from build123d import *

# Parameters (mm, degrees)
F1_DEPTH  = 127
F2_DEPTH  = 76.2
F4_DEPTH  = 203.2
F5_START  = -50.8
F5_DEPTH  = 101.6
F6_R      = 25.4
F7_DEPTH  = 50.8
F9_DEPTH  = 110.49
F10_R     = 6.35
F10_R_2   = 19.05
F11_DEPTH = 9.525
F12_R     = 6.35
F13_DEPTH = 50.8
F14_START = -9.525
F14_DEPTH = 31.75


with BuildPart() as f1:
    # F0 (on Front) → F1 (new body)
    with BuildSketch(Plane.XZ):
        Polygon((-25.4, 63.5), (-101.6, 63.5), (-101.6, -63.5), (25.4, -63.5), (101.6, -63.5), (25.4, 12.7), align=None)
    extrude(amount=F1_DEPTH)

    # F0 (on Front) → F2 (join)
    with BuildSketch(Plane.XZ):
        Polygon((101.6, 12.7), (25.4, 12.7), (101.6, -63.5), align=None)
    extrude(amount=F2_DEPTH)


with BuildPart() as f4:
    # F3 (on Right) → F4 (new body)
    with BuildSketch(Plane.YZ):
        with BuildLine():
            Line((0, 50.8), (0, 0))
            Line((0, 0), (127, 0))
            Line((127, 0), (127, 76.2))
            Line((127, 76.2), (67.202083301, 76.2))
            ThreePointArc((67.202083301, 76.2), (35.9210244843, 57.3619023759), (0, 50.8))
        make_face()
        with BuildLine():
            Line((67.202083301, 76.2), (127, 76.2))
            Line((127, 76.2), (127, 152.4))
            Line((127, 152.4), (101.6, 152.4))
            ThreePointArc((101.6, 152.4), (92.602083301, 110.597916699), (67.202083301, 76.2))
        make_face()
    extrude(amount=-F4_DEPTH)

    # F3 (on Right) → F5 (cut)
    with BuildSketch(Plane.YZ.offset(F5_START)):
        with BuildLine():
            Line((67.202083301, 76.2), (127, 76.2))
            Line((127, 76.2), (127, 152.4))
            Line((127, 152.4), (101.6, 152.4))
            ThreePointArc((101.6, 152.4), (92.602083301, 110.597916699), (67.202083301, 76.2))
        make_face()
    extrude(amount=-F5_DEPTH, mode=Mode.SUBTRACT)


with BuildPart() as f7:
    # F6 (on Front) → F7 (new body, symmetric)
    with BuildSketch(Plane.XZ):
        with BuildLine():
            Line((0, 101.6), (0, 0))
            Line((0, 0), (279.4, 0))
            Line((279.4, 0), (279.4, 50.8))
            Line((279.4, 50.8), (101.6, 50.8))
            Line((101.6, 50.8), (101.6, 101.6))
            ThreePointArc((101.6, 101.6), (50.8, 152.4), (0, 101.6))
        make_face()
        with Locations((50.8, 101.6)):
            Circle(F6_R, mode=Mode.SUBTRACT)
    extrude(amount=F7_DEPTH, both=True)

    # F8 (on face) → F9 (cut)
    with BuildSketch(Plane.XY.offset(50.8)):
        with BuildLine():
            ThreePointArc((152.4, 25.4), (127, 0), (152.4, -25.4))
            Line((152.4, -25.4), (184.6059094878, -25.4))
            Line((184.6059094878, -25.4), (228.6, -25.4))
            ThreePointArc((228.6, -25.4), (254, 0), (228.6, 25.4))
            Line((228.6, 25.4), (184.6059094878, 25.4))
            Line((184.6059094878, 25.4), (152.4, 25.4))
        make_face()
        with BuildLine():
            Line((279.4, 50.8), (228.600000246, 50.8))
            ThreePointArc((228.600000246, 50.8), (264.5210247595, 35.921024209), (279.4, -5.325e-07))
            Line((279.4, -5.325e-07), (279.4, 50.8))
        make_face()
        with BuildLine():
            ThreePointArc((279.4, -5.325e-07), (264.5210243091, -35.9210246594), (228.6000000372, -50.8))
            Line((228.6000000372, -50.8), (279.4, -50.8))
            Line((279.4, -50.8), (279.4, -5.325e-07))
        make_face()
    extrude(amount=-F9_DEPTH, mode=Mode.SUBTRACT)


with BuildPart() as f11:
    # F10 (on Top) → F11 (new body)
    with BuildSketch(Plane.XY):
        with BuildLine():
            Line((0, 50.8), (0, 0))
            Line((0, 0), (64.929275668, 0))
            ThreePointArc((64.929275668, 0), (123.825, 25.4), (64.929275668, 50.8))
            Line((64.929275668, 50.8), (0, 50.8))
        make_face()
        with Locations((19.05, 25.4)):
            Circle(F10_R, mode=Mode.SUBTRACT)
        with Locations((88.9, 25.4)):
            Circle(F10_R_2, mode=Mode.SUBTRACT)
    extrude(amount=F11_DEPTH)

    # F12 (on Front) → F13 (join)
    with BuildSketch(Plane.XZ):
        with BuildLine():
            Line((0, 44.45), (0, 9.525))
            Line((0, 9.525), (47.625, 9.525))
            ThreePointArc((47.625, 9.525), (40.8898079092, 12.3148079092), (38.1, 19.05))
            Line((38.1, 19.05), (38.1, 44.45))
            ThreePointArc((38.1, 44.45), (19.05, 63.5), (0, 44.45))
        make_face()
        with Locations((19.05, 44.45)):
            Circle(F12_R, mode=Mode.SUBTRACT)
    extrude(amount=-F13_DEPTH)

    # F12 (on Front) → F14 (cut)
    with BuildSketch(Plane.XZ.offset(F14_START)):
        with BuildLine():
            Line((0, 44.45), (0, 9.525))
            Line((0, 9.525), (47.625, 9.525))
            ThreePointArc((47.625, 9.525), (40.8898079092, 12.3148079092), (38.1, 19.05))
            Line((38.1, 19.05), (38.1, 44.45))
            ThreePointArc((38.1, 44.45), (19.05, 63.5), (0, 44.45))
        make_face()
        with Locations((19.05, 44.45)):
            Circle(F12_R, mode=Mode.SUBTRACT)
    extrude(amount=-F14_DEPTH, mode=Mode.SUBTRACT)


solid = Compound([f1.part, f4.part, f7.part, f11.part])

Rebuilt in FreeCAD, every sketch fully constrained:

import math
import FreeCAD as App
import Part
import Sketcher
from FreeCAD import Vector
Q = App.Units.Quantity


def add_polygon(sketch, points):
    """Adds a closed chain of lines whose ends are joined by coincident constraints."""
    first, n = sketch.GeometryCount, len(points)
    for a, b in zip(points, points[1:] + points[:1]):
        sketch.addGeometry(Part.LineSegment(App.Vector(*a, 0), App.Vector(*b, 0)), False)
    for i in range(n):
        sketch.addConstraint(Sketcher.Constraint("Coincident", first + i, 2, first + (i + 1) % n, 1))

doc = App.newDocument("Part")
body = doc.addObject("PartDesign::Body", "Body")

# Sketch on XZ plane
sketch1 = body.newObject("Sketcher::SketchObject", "Sketch")
sketch1.AttachmentSupport = (doc.getObject("XZ_Plane"), [""])
sketch1.MapMode = "FlatFace"
add_polygon(sketch1, [(-25, 64), (-102, 64), (-102, -64), (102, -64)])  # lines 0-3
sketch1.addConstraint([
    Sketcher.Constraint("Horizontal", 0),
    Sketcher.Constraint("Vertical", 1),
    Sketcher.Constraint("Horizontal", 2),
    Sketcher.Constraint("Symmetric", 0, 2, 2, 2, -1, 1),
    Sketcher.Constraint("DistanceX", 0, 2, 0, 1, Q("3 in")),
    Sketcher.Constraint("DistanceX", 2, 1, 2, 2, Q("8 in")),
    Sketcher.Constraint("DistanceY", 1, 2, 1, 1, Q("5 in")),
])
pad1 = body.newObject("PartDesign::Pad", "Pad")
pad1.Profile = sketch1
pad1.Length = Q("5 in")

# Sketch on XZ plane
sketch2 = body.newObject("Sketcher::SketchObject", "Sketch001")
sketch2.AttachmentSupport = (doc.getObject("XZ_Plane"), [""])
sketch2.MapMode = "FlatFace"
add_polygon(sketch2, [(102, 13), (25, 13), (102, -64)])  # lines 0-2
sketch2.addConstraint([
    Sketcher.Constraint("Horizontal", 0),
    Sketcher.Constraint("Vertical", 2),
    Sketcher.Constraint("Equal", 0, 2),
    Sketcher.Constraint("DistanceX", 0, 2, 0, 1, Q("3 in")),
    Sketcher.Constraint("DistanceX", -1, 1, 0, 2, Q("1 in")),
    Sketcher.Constraint("DistanceY", -1, 1, 0, 2, Q("0.5 in")),
])
pad2 = body.newObject("PartDesign::Pad", "Pad001")
pad2.Profile = sketch2
pad2.Length = Q("3 in")
body2 = doc.addObject("PartDesign::Body", "Body001")

# Sketch on YZ plane
sketch3 = body2.newObject("Sketcher::SketchObject", "Sketch002")
sketch3.AttachmentSupport = (doc.getObject("YZ_Plane001"), [""])
sketch3.MapMode = "FlatFace"
sketch3.addGeometry([
    Part.LineSegment(Vector(0, 51, 0), Vector(0, 0, 0)),  # 0
    Part.LineSegment(Vector(0, 0, 0), Vector(127, 0, 0)),  # 1
    Part.LineSegment(Vector(127, 0, 0), Vector(127, 152, 0)),  # 2
    Part.LineSegment(Vector(127, 152, 0), Vector(102, 152, 0)),  # 3
    Part.ArcOfCircle(Part.Circle(Vector(0, 152, 0), Vector(0, 0, 1), 102), math.radians(-49), math.radians(0)),  # 4
    Part.ArcOfCircle(Part.Circle(Vector(0, 152, 0), Vector(0, 0, 1), 102), math.radians(-90), math.radians(-49)),  # 5
], False)
sketch3.addConstraint([
    Sketcher.Constraint("Coincident", 0, 2, 1, 1),
    Sketcher.Constraint("Coincident", 1, 2, 2, 1),
    Sketcher.Constraint("Coincident", 2, 2, 3, 1),
    Sketcher.Constraint("Coincident", 3, 2, 4, 2),
    Sketcher.Constraint("Tangent", 4, 1, 5, 2),
    Sketcher.Constraint("Coincident", 5, 1, 0, 1),
    Sketcher.Constraint("Vertical", 0),
    Sketcher.Constraint("Horizontal", 1),
    Sketcher.Constraint("Vertical", 2),
    Sketcher.Constraint("Horizontal", 3),
    Sketcher.Constraint("Coincident", 0, 2, -1, 1),
    Sketcher.Constraint("Equal", 4, 5),
    Sketcher.Constraint("PointOnObject", 4, 3, -2),
    Sketcher.Constraint("Horizontal", 5, 3, 2, 2),
    Sketcher.Constraint("Radius", 4, Q("4 in")),
    Sketcher.Constraint("DistanceX", 1, 1, 1, 2, Q("5 in")),
    Sketcher.Constraint("DistanceY", 0, 2, 0, 1, Q("2 in")),
    Sketcher.Constraint("DistanceY", -1, 1, 4, 1, Q("3 in")),
])
pad3 = body2.newObject("PartDesign::Pad", "Pad002")
pad3.Profile = sketch3
pad3.Length = Q("8 in")
pad3.Reversed = True

# Sketch on YZ plane
sketch4 = body2.newObject("Sketcher::SketchObject", "Sketch003")
sketch4.AttachmentSupport = (doc.getObject("YZ_Plane001"), [""])
sketch4.MapMode = "FlatFace"
sketch4.AttachmentOffset = App.Placement(Vector(0, 0, -2 * 25.4), App.Rotation())
sketch4.addGeometry([
    Part.LineSegment(Vector(67, 76, 0), Vector(127, 76, 0)),
    Part.LineSegment(Vector(127, 76, 0), Vector(127, 152, 0)),
    Part.LineSegment(Vector(127, 152, 0), Vector(102, 152, 0)),
    Part.ArcOfCircle(Part.Circle(Vector(0, 152, 0), Vector(0, 0, 1), 102), math.radians(-49), math.radians(0)),
], False)
sketch4.addConstraint([
    Sketcher.Constraint("Coincident", 0, 2, 1, 1),
    Sketcher.Constraint("Coincident", 1, 2, 2, 1),
    Sketcher.Constraint("Coincident", 2, 2, 3, 2),
    Sketcher.Constraint("Coincident", 3, 1, 0, 1),
    Sketcher.Constraint("Horizontal", 0),
    Sketcher.Constraint("Vertical", 1),
    Sketcher.Constraint("Horizontal", 2),
    Sketcher.Constraint("PointOnObject", 3, 3, -2),
    Sketcher.Constraint("Horizontal", 3, 3, 1, 2),
    Sketcher.Constraint("Radius", 3, Q("4 in")),
    Sketcher.Constraint("DistanceX", 2, 2, 2, 1, Q("1 in")),
    Sketcher.Constraint("DistanceY", 1, 1, 1, 2, Q("3 in")),
    Sketcher.Constraint("DistanceY", -1, 1, 3, 3, Q("6 in")),
])
pocket1 = body2.newObject("PartDesign::Pocket", "Pocket")
pocket1.Profile = sketch4
pocket1.Length = Q("4 in")
body3 = doc.addObject("PartDesign::Body", "Body002")

# Sketch on XZ plane
sketch5 = body3.newObject("Sketcher::SketchObject", "Sketch004")
sketch5.AttachmentSupport = (doc.getObject("XZ_Plane002"), [""])
sketch5.MapMode = "FlatFace"
sketch5.addGeometry([
    Part.LineSegment(Vector(0, 102, 0), Vector(0, 0, 0)),  # 0
    Part.LineSegment(Vector(0, 0, 0), Vector(279, 0, 0)),  # 1
    Part.LineSegment(Vector(279, 0, 0), Vector(279, 51, 0)),  # 2
    Part.LineSegment(Vector(279, 51, 0), Vector(102, 51, 0)),  # 3
    Part.LineSegment(Vector(102, 51, 0), Vector(102, 102, 0)),  # 4
    Part.ArcOfCircle(Part.Circle(Vector(51, 102, 0), Vector(0, 0, 1), 51), math.radians(0), math.radians(180)),  # 5
    Part.Circle(Vector(51, 102, 0), Vector(0, 0, 1), 25),  # 6
], False)
sketch5.addConstraint([
    Sketcher.Constraint("Coincident", 0, 2, 1, 1),
    Sketcher.Constraint("Coincident", 1, 2, 2, 1),
    Sketcher.Constraint("Coincident", 2, 2, 3, 1),
    Sketcher.Constraint("Coincident", 3, 2, 4, 1),
    Sketcher.Constraint("Tangent", 4, 2, 5, 1),
    Sketcher.Constraint("Tangent", 5, 2, 0, 1),
    Sketcher.Constraint("Vertical", 0),
    Sketcher.Constraint("Horizontal", 1),
    Sketcher.Constraint("Vertical", 2),
    Sketcher.Constraint("Horizontal", 3),
    Sketcher.Constraint("Vertical", 4),
    Sketcher.Constraint("Coincident", 0, 2, -1, 1),
    Sketcher.Constraint("Coincident", 6, 3, 5, 3),
    Sketcher.Constraint("Equal", 2, 4),
    Sketcher.Constraint("Diameter", 6, Q("2 in")),
    Sketcher.Constraint("Radius", 5, Q("2 in")),
    Sketcher.Constraint("DistanceX", 1, 1, 1, 2, Q("11 in")),
    Sketcher.Constraint("DistanceY", 0, 2, 0, 1, Q("4 in")),
])
pad4 = body3.newObject("PartDesign::Pad", "Pad003")
pad4.Profile = sketch5
pad4.Length = Q("4 in")
pad4.Midplane = True

# Sketch on XY plane
sketch6 = body3.newObject("Sketcher::SketchObject", "Sketch005")
sketch6.AttachmentSupport = (doc.getObject("XY_Plane002"), [""])
sketch6.MapMode = "FlatFace"
sketch6.AttachmentOffset = App.Placement(Vector(0, 0, 2 * 25.4), App.Rotation())
sketch6.addGeometry([
    Part.ArcOfCircle(Part.Circle(Vector(152, 0, 0), Vector(0, 0, 1), 25), math.radians(90), math.radians(270)),  # 0
    Part.LineSegment(Vector(152, -25, 0), Vector(229, -25, 0)),  # 1
    Part.ArcOfCircle(Part.Circle(Vector(229, 0, 0), Vector(0, 0, 1), 25), math.radians(-90), math.radians(90)),  # 2
    Part.LineSegment(Vector(229, 25, 0), Vector(152, 25, 0)),  # 3
    Part.LineSegment(Vector(279, 51, 0), Vector(229, 51, 0)),  # 4
    Part.ArcOfCircle(Part.Circle(Vector(229, 0, 0), Vector(0, 0, 1), 51), math.radians(0), math.radians(90)),  # 5
    Part.LineSegment(Vector(279, 0, 0), Vector(279, 51, 0)),  # 6
    Part.ArcOfCircle(Part.Circle(Vector(229, 0, 0), Vector(0, 0, 1), 51), math.radians(-90), math.radians(0)),  # 7
    Part.LineSegment(Vector(229, -51, 0), Vector(279, -51, 0)),  # 8
    Part.LineSegment(Vector(279, -51, 0), Vector(279, 0, 0)),  # 9
], False)
sketch6.addConstraint([
    Sketcher.Constraint("Tangent", 0, 2, 1, 1),
    Sketcher.Constraint("Tangent", 1, 2, 2, 1),
    Sketcher.Constraint("Tangent", 2, 2, 3, 1),
    Sketcher.Constraint("Tangent", 3, 2, 0, 1),
    Sketcher.Constraint("Tangent", 4, 2, 5, 2),
    Sketcher.Constraint("Tangent", 5, 1, 6, 1),
    Sketcher.Constraint("Coincident", 6, 2, 4, 1),
    Sketcher.Constraint("Tangent", 7, 1, 8, 1),
    Sketcher.Constraint("Coincident", 8, 2, 9, 1),
    Sketcher.Constraint("Tangent", 9, 2, 7, 2),
    Sketcher.Constraint("Horizontal", 1),
    Sketcher.Constraint("Horizontal", 3),
    Sketcher.Constraint("Horizontal", 4),
    Sketcher.Constraint("Vertical", 6),
    Sketcher.Constraint("Horizontal", 8),
    Sketcher.Constraint("Vertical", 9),
    Sketcher.Constraint("Coincident", 5, 3, 2, 3),
    Sketcher.Constraint("Coincident", 7, 3, 2, 3),
    Sketcher.Constraint("Equal", 5, 7),
    Sketcher.Constraint("PointOnObject", 0, 3, -1),
    Sketcher.Constraint("Radius", 0, Q("1 in")),
    Sketcher.Constraint("Radius", 5, Q("2 in")),
    Sketcher.Constraint("DistanceX", 1, 1, 1, 2, Q("3 in")),
    Sketcher.Constraint("DistanceX", -1, 1, 0, 3, Q("6 in")),
])
pocket2 = body3.newObject("PartDesign::Pocket", "Pocket001")
pocket2.Profile = sketch6
pocket2.Length = Q("4.35 in")
body4 = doc.addObject("PartDesign::Body", "Body003")

# Sketch on XY plane
sketch7 = body4.newObject("Sketcher::SketchObject", "Sketch006")
sketch7.AttachmentSupport = (doc.getObject("XY_Plane003"), [""])
sketch7.MapMode = "FlatFace"
sketch7.addGeometry([
    Part.LineSegment(Vector(0, 51, 0), Vector(0, 0, 0)),  # 0
    Part.LineSegment(Vector(0, 0, 0), Vector(65, 0, 0)),  # 1
    Part.ArcOfCircle(Part.Circle(Vector(89, 25, 0), Vector(0, 0, 1), 35), math.radians(-133), math.radians(133)),  # 2
    Part.LineSegment(Vector(65, 51, 0), Vector(0, 51, 0)),  # 3
    Part.Circle(Vector(19, 25, 0), Vector(0, 0, 1), 6),  # 4
    Part.Circle(Vector(89, 25, 0), Vector(0, 0, 1), 19),  # 5
], False)
sketch7.addConstraint([
    Sketcher.Constraint("Coincident", 0, 2, 1, 1),
    Sketcher.Constraint("Coincident", 1, 2, 2, 1),
    Sketcher.Constraint("Coincident", 2, 2, 3, 1),
    Sketcher.Constraint("Coincident", 3, 2, 0, 1),
    Sketcher.Constraint("Vertical", 0),
    Sketcher.Constraint("Horizontal", 1),
    Sketcher.Constraint("Horizontal", 3),
    Sketcher.Constraint("Coincident", 0, 2, -1, 1),
    Sketcher.Constraint("Coincident", 5, 3, 2, 3),
    Sketcher.Constraint("Horizontal", 2, 3, 4, 3),
    Sketcher.Constraint("Vertical", 1, 2, 2, 2),
    Sketcher.Constraint("Diameter", 4, Q("0.5 in")),
    Sketcher.Constraint("Diameter", 5, Q("1.5 in")),
    Sketcher.Constraint("DistanceY", 0, 2, 0, 1, Q("2 in")),
    Sketcher.Constraint("Radius", 2, Q("1.375 in")),
    Sketcher.Constraint("DistanceX", -1, 1, 2, 3, Q("3.5 in")),
    Sketcher.Constraint("DistanceX", -1, 1, 4, 3, Q("0.75 in")),
])
pad5 = body4.newObject("PartDesign::Pad", "Pad004")
pad5.Profile = sketch7
pad5.Length = Q("0.375 in")

# Sketch on XZ plane
sketch8 = body4.newObject("Sketcher::SketchObject", "Sketch007")
sketch8.AttachmentSupport = (doc.getObject("XZ_Plane003"), [""])
sketch8.MapMode = "FlatFace"
sketch8.addGeometry([
    Part.LineSegment(Vector(0, 44, 0), Vector(0, 10, 0)),  # 0
    Part.LineSegment(Vector(0, 10, 0), Vector(48, 10, 0)),  # 1
    Part.ArcOfCircle(Part.Circle(Vector(48, 19, 0), Vector(0, 0, 1), 10), math.radians(180), math.radians(270)),  # 2
    Part.LineSegment(Vector(38, 19, 0), Vector(38, 44, 0)),  # 3
    Part.ArcOfCircle(Part.Circle(Vector(19, 44, 0), Vector(0, 0, 1), 19), math.radians(0), math.radians(180)),  # 4
    Part.Circle(Vector(19, 44, 0), Vector(0, 0, 1), 6),  # 5
], False)
sketch8.addConstraint([
    Sketcher.Constraint("Coincident", 0, 2, 1, 1),
    Sketcher.Constraint("Tangent", 1, 2, 2, 2),
    Sketcher.Constraint("Tangent", 2, 1, 3, 1),
    Sketcher.Constraint("Tangent", 3, 2, 4, 1),
    Sketcher.Constraint("Tangent", 4, 2, 0, 1),
    Sketcher.Constraint("Vertical", 0),
    Sketcher.Constraint("Horizontal", 1),
    Sketcher.Constraint("Vertical", 3),
    Sketcher.Constraint("Coincident", 5, 3, 4, 3),
    Sketcher.Constraint("PointOnObject", 0, 2, -2),
    Sketcher.Constraint("Diameter", 5, Q("0.5 in")),
    Sketcher.Constraint("DistanceY", 3, 1, 3, 2, Q("1 in")),
    Sketcher.Constraint("Radius", 4, Q("0.75 in")),
    Sketcher.Constraint("Radius", 2, Q("0.375 in")),
    Sketcher.Constraint("DistanceY", -1, 1, 2, 3, Q("0.75 in")),
])
pad6 = body4.newObject("PartDesign::Pad", "Pad005")
pad6.Profile = sketch8
pad6.Length = Q("2 in")
pad6.Reversed = True

# Sketch on XZ plane
sketch9 = body4.newObject("Sketcher::SketchObject", "Sketch008")
sketch9.AttachmentSupport = (doc.getObject("XZ_Plane003"), [""])
sketch9.MapMode = "FlatFace"
sketch9.AttachmentOffset = App.Placement(Vector(0, 0, -0.375 * 25.4), App.Rotation())
sketch9.addGeometry([
    Part.LineSegment(Vector(0, 44, 0), Vector(0, 10, 0)),  # 0
    Part.LineSegment(Vector(0, 10, 0), Vector(48, 10, 0)),  # 1
    Part.ArcOfCircle(Part.Circle(Vector(48, 19, 0), Vector(0, 0, 1), 10), math.radians(180), math.radians(270)),  # 2
    Part.LineSegment(Vector(38, 19, 0), Vector(38, 44, 0)),  # 3
    Part.ArcOfCircle(Part.Circle(Vector(19, 44, 0), Vector(0, 0, 1), 19), math.radians(0), math.radians(180)),  # 4
    Part.Circle(Vector(19, 44, 0), Vector(0, 0, 1), 6),  # 5
], False)
sketch9.addConstraint([
    Sketcher.Constraint("Coincident", 0, 2, 1, 1),
    Sketcher.Constraint("Tangent", 1, 2, 2, 2),
    Sketcher.Constraint("Tangent", 2, 1, 3, 1),
    Sketcher.Constraint("Tangent", 3, 2, 4, 1),
    Sketcher.Constraint("Tangent", 4, 2, 0, 1),
    Sketcher.Constraint("Vertical", 0),
    Sketcher.Constraint("Horizontal", 1),
    Sketcher.Constraint("Vertical", 3),
    Sketcher.Constraint("Coincident", 5, 3, 4, 3),
    Sketcher.Constraint("PointOnObject", 0, 2, -2),
    Sketcher.Constraint("Diameter", 5, Q("0.5 in")),
    Sketcher.Constraint("DistanceY", 3, 1, 3, 2, Q("1 in")),
    Sketcher.Constraint("Radius", 4, Q("0.75 in")),
    Sketcher.Constraint("Radius", 2, Q("0.375 in")),
    Sketcher.Constraint("DistanceY", -1, 1, 2, 3, Q("0.75 in")),
])
pocket3 = body4.newObject("PartDesign::Pocket", "Pocket002")
pocket3.Profile = sketch9
pocket3.Length = Q("1.25 in")

doc.recompute()
